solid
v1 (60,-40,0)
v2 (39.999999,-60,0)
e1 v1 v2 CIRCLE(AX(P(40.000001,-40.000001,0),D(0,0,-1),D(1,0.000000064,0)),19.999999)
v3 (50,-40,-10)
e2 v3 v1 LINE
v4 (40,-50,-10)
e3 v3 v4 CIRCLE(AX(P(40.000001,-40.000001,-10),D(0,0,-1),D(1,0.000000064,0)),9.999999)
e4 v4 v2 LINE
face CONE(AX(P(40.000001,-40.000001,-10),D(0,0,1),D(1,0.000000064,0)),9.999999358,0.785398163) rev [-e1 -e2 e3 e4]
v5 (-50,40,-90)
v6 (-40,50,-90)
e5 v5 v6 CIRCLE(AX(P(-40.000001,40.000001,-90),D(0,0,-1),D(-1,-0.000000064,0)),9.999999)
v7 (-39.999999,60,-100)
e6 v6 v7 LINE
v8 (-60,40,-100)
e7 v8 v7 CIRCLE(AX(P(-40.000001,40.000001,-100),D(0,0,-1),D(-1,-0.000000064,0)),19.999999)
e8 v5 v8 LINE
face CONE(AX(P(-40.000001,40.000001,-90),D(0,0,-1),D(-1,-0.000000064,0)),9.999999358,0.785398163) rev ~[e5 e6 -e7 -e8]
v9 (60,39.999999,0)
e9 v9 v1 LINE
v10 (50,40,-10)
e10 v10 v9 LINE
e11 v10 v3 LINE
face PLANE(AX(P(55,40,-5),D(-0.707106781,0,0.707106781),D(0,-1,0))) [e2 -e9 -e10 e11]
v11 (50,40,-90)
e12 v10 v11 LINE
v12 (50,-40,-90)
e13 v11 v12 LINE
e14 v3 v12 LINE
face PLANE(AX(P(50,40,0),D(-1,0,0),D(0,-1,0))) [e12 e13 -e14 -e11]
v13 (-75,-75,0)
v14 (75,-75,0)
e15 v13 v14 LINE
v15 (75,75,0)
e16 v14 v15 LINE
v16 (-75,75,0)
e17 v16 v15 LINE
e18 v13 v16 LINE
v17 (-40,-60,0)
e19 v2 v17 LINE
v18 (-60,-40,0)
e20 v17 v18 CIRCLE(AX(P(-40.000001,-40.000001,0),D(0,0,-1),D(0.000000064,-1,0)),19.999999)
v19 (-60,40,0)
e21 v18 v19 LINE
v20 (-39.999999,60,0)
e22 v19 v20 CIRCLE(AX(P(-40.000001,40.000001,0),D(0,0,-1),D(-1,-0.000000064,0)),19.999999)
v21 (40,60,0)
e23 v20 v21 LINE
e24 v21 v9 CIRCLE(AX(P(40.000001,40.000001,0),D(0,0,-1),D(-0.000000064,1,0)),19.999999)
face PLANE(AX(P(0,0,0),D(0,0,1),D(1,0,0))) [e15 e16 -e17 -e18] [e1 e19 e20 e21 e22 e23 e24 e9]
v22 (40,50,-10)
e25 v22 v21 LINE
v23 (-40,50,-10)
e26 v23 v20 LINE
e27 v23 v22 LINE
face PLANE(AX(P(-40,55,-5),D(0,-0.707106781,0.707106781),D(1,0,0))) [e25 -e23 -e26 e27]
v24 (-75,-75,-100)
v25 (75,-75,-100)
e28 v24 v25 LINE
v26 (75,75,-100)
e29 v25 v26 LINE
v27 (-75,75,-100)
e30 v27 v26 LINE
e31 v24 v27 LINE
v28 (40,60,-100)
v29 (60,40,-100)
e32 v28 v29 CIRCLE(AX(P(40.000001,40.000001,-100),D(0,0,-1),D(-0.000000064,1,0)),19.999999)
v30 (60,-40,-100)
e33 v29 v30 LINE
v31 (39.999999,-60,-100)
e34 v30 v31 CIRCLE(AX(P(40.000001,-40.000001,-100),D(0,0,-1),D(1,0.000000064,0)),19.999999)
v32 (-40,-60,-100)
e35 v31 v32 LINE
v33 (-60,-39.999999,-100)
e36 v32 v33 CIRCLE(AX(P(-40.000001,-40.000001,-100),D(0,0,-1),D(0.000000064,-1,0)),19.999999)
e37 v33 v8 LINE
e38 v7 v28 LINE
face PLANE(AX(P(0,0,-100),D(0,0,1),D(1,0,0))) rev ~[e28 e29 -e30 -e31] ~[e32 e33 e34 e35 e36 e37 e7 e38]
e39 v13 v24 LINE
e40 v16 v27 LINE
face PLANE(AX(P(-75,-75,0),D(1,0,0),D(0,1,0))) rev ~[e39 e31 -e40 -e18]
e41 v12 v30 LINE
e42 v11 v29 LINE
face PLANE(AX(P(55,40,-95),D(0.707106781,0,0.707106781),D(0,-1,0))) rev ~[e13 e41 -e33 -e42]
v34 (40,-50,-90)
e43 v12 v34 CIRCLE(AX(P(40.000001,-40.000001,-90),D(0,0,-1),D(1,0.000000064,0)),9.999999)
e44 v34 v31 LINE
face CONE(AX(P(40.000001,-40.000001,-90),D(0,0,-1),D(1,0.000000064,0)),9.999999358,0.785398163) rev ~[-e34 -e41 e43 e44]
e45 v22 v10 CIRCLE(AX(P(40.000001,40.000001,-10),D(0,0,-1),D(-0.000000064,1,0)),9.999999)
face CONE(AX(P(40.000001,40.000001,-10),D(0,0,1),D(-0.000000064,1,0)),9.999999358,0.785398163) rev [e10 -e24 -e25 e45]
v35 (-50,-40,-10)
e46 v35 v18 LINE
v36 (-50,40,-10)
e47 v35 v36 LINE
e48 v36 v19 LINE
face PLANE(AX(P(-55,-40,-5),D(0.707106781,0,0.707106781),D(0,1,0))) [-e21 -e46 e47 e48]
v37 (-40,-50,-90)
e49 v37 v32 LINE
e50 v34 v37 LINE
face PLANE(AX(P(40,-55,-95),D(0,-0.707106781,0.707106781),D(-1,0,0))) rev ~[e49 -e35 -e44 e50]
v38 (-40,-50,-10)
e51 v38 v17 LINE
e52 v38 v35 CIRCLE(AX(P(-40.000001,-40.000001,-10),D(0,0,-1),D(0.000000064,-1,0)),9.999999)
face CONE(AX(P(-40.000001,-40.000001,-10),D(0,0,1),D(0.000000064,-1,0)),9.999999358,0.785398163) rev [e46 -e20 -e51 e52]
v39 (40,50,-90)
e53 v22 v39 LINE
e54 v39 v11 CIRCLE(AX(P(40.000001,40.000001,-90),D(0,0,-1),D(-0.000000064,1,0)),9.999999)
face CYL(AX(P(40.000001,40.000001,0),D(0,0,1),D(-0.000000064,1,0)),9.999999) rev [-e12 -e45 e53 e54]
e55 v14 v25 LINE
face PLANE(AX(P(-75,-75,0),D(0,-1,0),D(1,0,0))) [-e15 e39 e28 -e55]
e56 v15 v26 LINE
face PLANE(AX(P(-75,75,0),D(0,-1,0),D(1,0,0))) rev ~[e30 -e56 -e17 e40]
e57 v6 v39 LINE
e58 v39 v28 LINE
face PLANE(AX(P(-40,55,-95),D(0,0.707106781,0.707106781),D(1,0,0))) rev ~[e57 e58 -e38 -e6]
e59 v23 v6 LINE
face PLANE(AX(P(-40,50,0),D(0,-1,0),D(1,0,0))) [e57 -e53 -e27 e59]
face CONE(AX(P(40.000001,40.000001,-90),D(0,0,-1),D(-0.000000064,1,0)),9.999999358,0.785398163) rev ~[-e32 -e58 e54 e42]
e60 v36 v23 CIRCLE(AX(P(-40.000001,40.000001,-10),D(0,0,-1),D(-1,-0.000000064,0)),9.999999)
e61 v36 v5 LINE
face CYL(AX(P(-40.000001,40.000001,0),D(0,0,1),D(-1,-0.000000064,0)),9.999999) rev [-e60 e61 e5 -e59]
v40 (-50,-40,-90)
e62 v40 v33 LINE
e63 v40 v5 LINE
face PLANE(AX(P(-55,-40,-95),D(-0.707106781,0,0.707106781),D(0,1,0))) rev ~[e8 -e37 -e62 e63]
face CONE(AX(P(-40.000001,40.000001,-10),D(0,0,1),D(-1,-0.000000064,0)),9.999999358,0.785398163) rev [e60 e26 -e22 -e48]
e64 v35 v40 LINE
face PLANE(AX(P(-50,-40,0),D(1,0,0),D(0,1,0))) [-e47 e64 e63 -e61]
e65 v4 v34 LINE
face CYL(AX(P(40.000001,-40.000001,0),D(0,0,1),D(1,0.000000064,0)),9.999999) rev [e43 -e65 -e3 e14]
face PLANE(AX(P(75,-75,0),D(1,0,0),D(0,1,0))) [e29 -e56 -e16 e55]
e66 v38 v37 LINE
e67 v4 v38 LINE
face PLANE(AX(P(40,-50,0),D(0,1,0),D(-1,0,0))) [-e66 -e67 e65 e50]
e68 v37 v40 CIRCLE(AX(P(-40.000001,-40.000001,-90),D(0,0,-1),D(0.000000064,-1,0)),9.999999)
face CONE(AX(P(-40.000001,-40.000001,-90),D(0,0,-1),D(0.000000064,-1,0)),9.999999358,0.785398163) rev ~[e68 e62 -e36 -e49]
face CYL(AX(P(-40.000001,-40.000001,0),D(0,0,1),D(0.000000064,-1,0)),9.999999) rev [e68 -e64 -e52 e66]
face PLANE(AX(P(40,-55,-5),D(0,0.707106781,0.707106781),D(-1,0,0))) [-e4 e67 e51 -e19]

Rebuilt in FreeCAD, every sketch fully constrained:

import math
import FreeCAD as App
import Part
import Sketcher

V = App.Vector
Q = App.Units.Quantity


def edges_at(feature, points):
    """Names of the edges that pass closest to the given points."""
    edges = feature.Shape.Edges
    near = lambda p: min(range(len(edges)), key=lambda i: edges[i].distToShape(Part.Vertex(*p))[0])
    return sorted({f"Edge{near(p) + 1}" for p in points})


def add_polygon(sketch, points):
    """Adds a closed chain of lines whose ends are joined by coincident constraints."""
    first, n = sketch.GeometryCount, len(points)
    for a, b in zip(points, points[1:] + points[:1]):
        sketch.addGeometry(Part.LineSegment(App.Vector(*a, 0), App.Vector(*b, 0)), False)
    for i in range(n):
        sketch.addConstraint(Sketcher.Constraint("Coincident", first + i, 2, first + (i + 1) % n, 1))

doc = App.newDocument("Part")
body = doc.addObject("PartDesign::Body", "Body")

# Sketch on XY plane
sketch1 = body.newObject("Sketcher::SketchObject", "Sketch")
sketch1.AttachmentSupport = (doc.getObject("XY_Plane"), [""])
sketch1.MapMode = "FlatFace"
add_polygon(sketch1, [(-75, 75), (-75, -75), (75, -75), (75, 75)])  # lines 0-3
sketch1.addGeometry(Part.LineSegment(V(50, 40, 0), V(50, -40, 0)), False)  # 4
sketch1.addGeometry(Part.ArcOfCircle(Part.Circle(V(40, -40, 0), V(0, 0, 1), 10), math.radians(-90), math.radians(0)), False)  # 5
sketch1.addGeometry(Part.LineSegment(V(40, -50, 0), V(-40, -50, 0)), False)  # 6
sketch1.addGeometry(Part.ArcOfCircle(Part.Circle(V(-40, -40, 0), V(0, 0, 1), 10), math.radians(180), math.radians(270)), False)  # 7
sketch1.addGeometry(Part.LineSegment(V(-50, -40, 0), V(-50, 40, 0)), False)  # 8
sketch1.addGeometry(Part.ArcOfCircle(Part.Circle(V(-40, 40, 0), V(0, 0, 1), 10), math.radians(90), math.radians(180)), False)  # 9
sketch1.addGeometry(Part.LineSegment(V(-40, 50, 0), V(40, 50, 0)), False)  # 10
sketch1.addGeometry(Part.ArcOfCircle(Part.Circle(V(40, 40, 0), V(0, 0, 1), 10), math.radians(0), math.radians(90)), False)  # 11
sketch1.addConstraint([
    Sketcher.Constraint("Tangent", 4, 2, 5, 2),
    Sketcher.Constraint("Tangent", 5, 1, 6, 1),
    Sketcher.Constraint("Tangent", 6, 2, 7, 2),
    Sketcher.Constraint("Tangent", 7, 1, 8, 1),
    Sketcher.Constraint("Tangent", 8, 2, 9, 2),
    Sketcher.Constraint("Tangent", 9, 1, 10, 1),
    Sketcher.Constraint("Tangent", 10, 2, 11, 2),
    Sketcher.Constraint("Tangent", 11, 1, 4, 1),
    Sketcher.Constraint("Vertical", 0),
    Sketcher.Constraint("Horizontal", 1),
    Sketcher.Constraint("Vertical", 2),
    Sketcher.Constraint("Horizontal", 3),
    Sketcher.Constraint("Vertical", 4),
    Sketcher.Constraint("Horizontal", 6),
    Sketcher.Constraint("Vertical", 8),
    Sketcher.Constraint("Horizontal", 10),
    Sketcher.Constraint("Equal", 5, 7),
    Sketcher.Constraint("Equal", 7, 9),
    Sketcher.Constraint("Equal", 9, 11),
    Sketcher.Constraint("Symmetric", 5, 3, 9, 3, -1, 1),
    Sketcher.Constraint("Symmetric", 0, 2, 2, 2, -1, 1),
    Sketcher.Constraint("Equal", 3, 0),
    Sketcher.Constraint("Equal", 10, 4),
    Sketcher.Constraint("Radius", 5, Q("9.999999 mm")),
    Sketcher.Constraint("DistanceX", 1, 1, 1, 2, Q("150 mm")),
    Sketcher.Constraint("DistanceX", 6, 2, 6, 1, Q("80 mm")),
])
pad1 = body.newObject("PartDesign::Pad", "Pad")
pad1.Profile = sketch1
pad1.Length = 100
pad1.Reversed = True
doc.recompute()

chamfer = body.newObject("PartDesign::Chamfer", "Chamfer")
chamfer.Base = (pad1, edges_at(pad1, [(-50, 0, 0)]))
chamfer.Size = 10
doc.recompute()

chamfer2 = body.newObject("PartDesign::Chamfer", "Chamfer001")
chamfer2.Base = (chamfer, edges_at(chamfer, [(50, 0, -100)]))
chamfer2.Size = 10

doc.recompute()
